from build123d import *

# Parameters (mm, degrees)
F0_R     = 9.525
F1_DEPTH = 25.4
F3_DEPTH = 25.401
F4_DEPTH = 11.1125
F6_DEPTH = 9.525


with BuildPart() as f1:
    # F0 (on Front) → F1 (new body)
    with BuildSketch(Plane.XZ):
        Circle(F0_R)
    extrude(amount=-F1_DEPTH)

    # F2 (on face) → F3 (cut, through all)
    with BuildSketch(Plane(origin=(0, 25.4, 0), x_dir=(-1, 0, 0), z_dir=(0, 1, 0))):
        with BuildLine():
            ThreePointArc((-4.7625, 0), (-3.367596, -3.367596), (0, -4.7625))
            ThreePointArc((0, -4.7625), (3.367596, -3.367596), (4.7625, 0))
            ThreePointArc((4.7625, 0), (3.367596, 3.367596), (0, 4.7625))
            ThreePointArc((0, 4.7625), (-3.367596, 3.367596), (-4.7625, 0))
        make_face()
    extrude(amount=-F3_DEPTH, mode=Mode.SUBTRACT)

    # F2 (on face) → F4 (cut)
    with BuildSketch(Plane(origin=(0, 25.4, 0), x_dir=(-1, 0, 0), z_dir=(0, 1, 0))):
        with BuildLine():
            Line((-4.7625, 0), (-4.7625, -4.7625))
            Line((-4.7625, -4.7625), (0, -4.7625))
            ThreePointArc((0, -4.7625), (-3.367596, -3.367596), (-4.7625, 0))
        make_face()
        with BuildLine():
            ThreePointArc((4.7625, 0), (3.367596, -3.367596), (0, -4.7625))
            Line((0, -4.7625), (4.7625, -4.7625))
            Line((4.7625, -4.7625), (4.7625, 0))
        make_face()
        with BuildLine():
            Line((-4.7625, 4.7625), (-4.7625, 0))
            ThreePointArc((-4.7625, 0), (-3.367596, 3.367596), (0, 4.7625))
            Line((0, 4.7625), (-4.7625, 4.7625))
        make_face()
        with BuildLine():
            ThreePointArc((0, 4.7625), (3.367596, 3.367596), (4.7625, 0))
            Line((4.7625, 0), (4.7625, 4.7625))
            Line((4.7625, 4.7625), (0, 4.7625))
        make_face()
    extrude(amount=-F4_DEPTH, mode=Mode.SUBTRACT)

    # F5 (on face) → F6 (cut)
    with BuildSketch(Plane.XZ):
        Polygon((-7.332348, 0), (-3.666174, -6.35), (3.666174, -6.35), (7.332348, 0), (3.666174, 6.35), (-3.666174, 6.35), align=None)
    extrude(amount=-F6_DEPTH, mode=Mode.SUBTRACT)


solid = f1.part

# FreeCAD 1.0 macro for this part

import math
import FreeCAD as App
import Part
import Sketcher
from FreeCAD import Vector
Q = App.Units.Quantity


def add_polygon(sketch, points):
    """Adds a closed chain of lines whose ends are joined by coincident constraints."""
    first, n = sketch.GeometryCount, len(points)
    for a, b in zip(points, points[1:] + points[:1]):
        sketch.addGeometry(Part.LineSegment(App.Vector(*a, 0), App.Vector(*b, 0)), False)
    for i in range(n):
        sketch.addConstraint(Sketcher.Constraint("Coincident", first + i, 2, first + (i + 1) % n, 1))

doc = App.newDocument("Part")
body = doc.addObject("PartDesign::Body", "Body")

# Sketch on XZ plane
sketch1 = body.newObject("Sketcher::SketchObject", "Sketch")
sketch1.AttachmentSupport = (doc.getObject("XZ_Plane"), [""])
sketch1.MapMode = "FlatFace"
sketch1.addGeometry(Part.Circle(Vector(0, 0, 0), Vector(0, 0, 1), 10), False)
sketch1.addConstraint([
    Sketcher.Constraint("Coincident", 0, 3, -1, 1),
    Sketcher.Constraint("Diameter", 0, Q("0.75 in")),
])
pad1 = body.newObject("PartDesign::Pad", "Pad")
pad1.Profile = sketch1
pad1.Length = Q("1 in")
pad1.Reversed = True

# Sketch on XZ plane
sketch2 = body.newObject("Sketcher::SketchObject", "Sketch001")
sketch2.AttachmentSupport = (doc.getObject("XZ_Plane"), [""])
sketch2.MapMode = "FlatFace"
sketch2.AttachmentOffset = App.Placement(Vector(0, 0, -1 * 25.4), App.Rotation())
sketch2.addGeometry([
    Part.ArcOfCircle(Part.Circle(Vector(0, 0, 0), Vector(0, 0, 1), 4.8), math.radians(-90), math.radians(0)),
    Part.ArcOfCircle(Part.Circle(Vector(0, 0, 0), Vector(0, 0, 1), 4.8), math.radians(-180), math.radians(-90)),
    Part.ArcOfCircle(Part.Circle(Vector(0, 0, 0), Vector(0, 0, 1), 4.8), math.radians(90), math.radians(180)),
    Part.ArcOfCircle(Part.Circle(Vector(0, 0, 0), Vector(0, 0, 1), 4.8), math.radians(0), math.radians(90)),
], False)
sketch2.addConstraint([
    Sketcher.Constraint("Tangent", 0, 1, 1, 2),
    Sketcher.Constraint("Tangent", 1, 1, 2, 2),
    Sketcher.Constraint("Tangent", 2, 1, 3, 2),
    Sketcher.Constraint("Tangent", 3, 1, 0, 2),
    Sketcher.Constraint("Coincident", 0, 3, -1, 1),
    Sketcher.Constraint("Equal", 0, 1),
    Sketcher.Constraint("PointOnObject", 0, 1, -2),
    Sketcher.Constraint("PointOnObject", 1, 1, -1),
    Sketcher.Constraint("PointOnObject", 2, 1, -2),
    Sketcher.Constraint("PointOnObject", 3, 1, -1),
    Sketcher.Constraint("Radius", 0, Q("0.1875 in")),
])
pocket1 = body.newObject("PartDesign::Pocket", "Pocket")
pocket1.Profile = sketch2
pocket1.Type = "ThroughAll"
pocket1.Reversed = True

# Sketch on XZ plane
sketch3 = body.newObject("Sketcher::SketchObject", "Sketch002")
sketch3.AttachmentSupport = (doc.getObject("XZ_Plane"), [""])
sketch3.MapMode = "FlatFace"
sketch3.AttachmentOffset = App.Placement(Vector(0, 0, -1 * 25.4), App.Rotation())
sketch3.addGeometry([
    Part.LineSegment(Vector(4.8, 0, 0), Vector(4.8, -4.8, 0)),  # 0
    Part.LineSegment(Vector(4.8, -4.8, 0), Vector(0, -4.8, 0)),  # 1
    Part.ArcOfCircle(Part.Circle(Vector(0, 0, 0), Vector(0, 0, 1), 4.8), math.radians(-90), math.radians(0)),  # 2
    Part.ArcOfCircle(Part.Circle(Vector(0, 0, 0), Vector(0, 0, 1), 4.8), math.radians(-180), math.radians(-90)),  # 3
    Part.LineSegment(Vector(0, -4.8, 0), Vector(-4.8, -4.8, 0)),  # 4
    Part.LineSegment(Vector(-4.8, -4.8, 0), Vector(-4.8, 0, 0)),  # 5
    Part.LineSegment(Vector(4.8, 4.8, 0), Vector(4.8, 0, 0)),  # 6
    Part.ArcOfCircle(Part.Circle(Vector(0, 0, 0), Vector(0, 0, 1), 4.8), math.radians(0), math.radians(90)),  # 7
    Part.LineSegment(Vector(0, 4.8, 0), Vector(4.8, 4.8, 0)),  # 8
    Part.ArcOfCircle(Part.Circle(Vector(0, 0, 0), Vector(0, 0, 1), 4.8), math.radians(90), math.radians(180)),  # 9
    Part.LineSegment(Vector(-4.8, 0, 0), Vector(-4.8, 4.8, 0)),  # 10
    Part.LineSegment(Vector(-4.8, 4.8, 0), Vector(0, 4.8, 0)),  # 11
], False)
sketch3.addConstraint([
    Sketcher.Constraint("Coincident", 0, 2, 1, 1),
    Sketcher.Constraint("Tangent", 1, 2, 2, 1),
    Sketcher.Constraint("Tangent", 2, 2, 0, 1),
    Sketcher.Constraint("Tangent", 3, 2, 4, 1),
    Sketcher.Constraint("Coincident", 4, 2, 5, 1),
    Sketcher.Constraint("Tangent", 5, 2, 3, 1),
    Sketcher.Constraint("Tangent", 6, 2, 7, 1),
    Sketcher.Constraint("Tangent", 7, 2, 8, 1),
    Sketcher.Constraint("Coincident", 8, 2, 6, 1),
    Sketcher.Constraint("Tangent", 9, 2, 10, 1),
    Sketcher.Constraint("Coincident", 10, 2, 11, 1),
    Sketcher.Constraint("Tangent", 11, 2, 9, 1),
    Sketcher.Constraint("Vertical", 0),
    Sketcher.Constraint("Horizontal", 1),
    Sketcher.Constraint("Horizontal", 4),
    Sketcher.Constraint("Vertical", 5),
    Sketcher.Constraint("Vertical", 6),
    Sketcher.Constraint("Horizontal", 8),
    Sketcher.Constraint("Vertical", 10),
    Sketcher.Constraint("Horizontal", 11),
    Sketcher.Constraint("Coincident", 2, 3, -1, 1),
    Sketcher.Constraint("Coincident", 3, 3, -1, 1),
    Sketcher.Constraint("Coincident", 7, 3, -1, 1),
    Sketcher.Constraint("Coincident", 9, 3, -1, 1),
    Sketcher.Constraint("Equal", 2, 3),
    Sketcher.Constraint("Equal", 3, 7),
    Sketcher.Constraint("Equal", 7, 9),
    Sketcher.Constraint("Radius", 2, Q("0.1875 in")),
])
pocket2 = body.newObject("PartDesign::Pocket", "Pocket001")
pocket2.Profile = sketch3
pocket2.Length = Q("0.4375 in")
pocket2.Reversed = True

# Sketch on XZ plane
sketch4 = body.newObject("Sketcher::SketchObject", "Sketch003")
sketch4.AttachmentSupport = (doc.getObject("XZ_Plane"), [""])
sketch4.MapMode = "FlatFace"
add_polygon(sketch4, [(-7, 0), (-4, -6), (4, -6), (7, 0), (4, 6), (-4, 6)])  # lines 0-5
sketch4.addConstraint([
    Sketcher.Constraint("Horizontal", 1),
    Sketcher.Constraint("Horizontal", 4),
    Sketcher.Constraint("Symmetric", 0, 2, 3, 2, -1, 1),
    Sketcher.Constraint("Symmetric", 2, 2, 5, 2, -1, 1),
    Sketcher.Constraint("PointOnObject", 2, 2, -1),
    Sketcher.Constraint("Parallel", 2, 5),
    Sketcher.Constraint("Vertical", 1, 2, 3, 2),
    Sketcher.Constraint("Angle", 0, Q("-60.000001 deg")),
    Sketcher.Constraint("DistanceY", 1, 2, 3, 2, Q("0.5 in")),
    Sketcher.Constraint("DistanceX", 1, 1, 1, 2, 7.332348),
])
pocket3 = body.newObject("PartDesign::Pocket", "Pocket002")
pocket3.Profile = sketch4
pocket3.Length = Q("0.375 in")

doc.recompute()
